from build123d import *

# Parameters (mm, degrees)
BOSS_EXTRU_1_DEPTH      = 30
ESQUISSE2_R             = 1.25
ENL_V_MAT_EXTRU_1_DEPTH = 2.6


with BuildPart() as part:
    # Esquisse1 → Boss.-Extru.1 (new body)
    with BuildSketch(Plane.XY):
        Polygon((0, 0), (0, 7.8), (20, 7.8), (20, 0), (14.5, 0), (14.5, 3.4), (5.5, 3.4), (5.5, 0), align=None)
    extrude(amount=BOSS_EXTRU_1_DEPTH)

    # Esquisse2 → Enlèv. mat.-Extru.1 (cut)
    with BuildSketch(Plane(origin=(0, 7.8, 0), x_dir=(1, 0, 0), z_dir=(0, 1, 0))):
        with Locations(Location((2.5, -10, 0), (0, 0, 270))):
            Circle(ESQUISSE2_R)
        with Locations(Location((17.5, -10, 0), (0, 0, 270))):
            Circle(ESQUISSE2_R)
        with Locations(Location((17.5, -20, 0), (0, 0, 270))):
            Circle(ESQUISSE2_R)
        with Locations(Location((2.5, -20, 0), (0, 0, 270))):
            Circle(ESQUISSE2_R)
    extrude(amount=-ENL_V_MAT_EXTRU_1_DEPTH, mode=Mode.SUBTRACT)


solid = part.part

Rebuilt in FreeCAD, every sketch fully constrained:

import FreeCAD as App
import Part
import Sketcher

V = App.Vector

doc = App.newDocument("Part")
params = doc.addObject("Spreadsheet::Sheet", "Params")
for row, (alias, value) in enumerate([
    ("sketch1_width", "9 mm"),
    ("sketch1_width2", "20 mm"),
    ("sketch1_height", "7.8 mm"),
    ("sketch1_height2", "3.4 mm"),
    ("pad1_length", "30 mm"),
    ("sketch2_diameter", "2.5 mm"),
    ("pocket1_length", "2.6 mm"),
], start=1):
    params.set(f"A{row}", alias)
    params.set(f"B{row}", "=" + value)
    params.setAlias(f"B{row}", alias)

body = doc.addObject("PartDesign::Body", "Body")

# Sketch on XY plane
sketch1 = body.newObject("Sketcher::SketchObject", "Sketch")
sketch1.AttachmentSupport = (doc.getObject("XY_Plane"), [""])
sketch1.MapMode = "FlatFace"
sketch1.addGeometry([
    Part.LineSegment(V(0, 7.8, 0), V(0, 0, 0)),  # 0
    Part.LineSegment(V(0, 0, 0), V(5.5, 0, 0)),  # 1
    Part.LineSegment(V(5.5, 0, 0), V(5.5, 3.4, 0)),  # 2
    Part.LineSegment(V(5.5, 3.4, 0), V(14.5, 3.4, 0)),  # 3
    Part.LineSegment(V(14.5, 3.4, 0), V(14.5, 0, 0)),  # 4
    Part.LineSegment(V(14.5, 0, 0), V(20, 0, 0)),  # 5
    Part.LineSegment(V(20, 0, 0), V(20, 7.8, 0)),  # 6
    Part.LineSegment(V(20, 7.8, 0), V(0, 7.8, 0)),  # 7
], False)
sketch1.addConstraint([
    Sketcher.Constraint("Coincident", 0, 2, 1, 1),
    Sketcher.Constraint("Coincident", 1, 2, 2, 1),
    Sketcher.Constraint("Coincident", 2, 2, 3, 1),
    Sketcher.Constraint("Coincident", 3, 2, 4, 1),
    Sketcher.Constraint("Coincident", 4, 2, 5, 1),
    Sketcher.Constraint("Coincident", 5, 2, 6, 1),
    Sketcher.Constraint("Coincident", 6, 2, 7, 1),
    Sketcher.Constraint("Coincident", 7, 2, 0, 1),
    Sketcher.Constraint("Vertical", 0),
    Sketcher.Constraint("Horizontal", 1),
    Sketcher.Constraint("Vertical", 2),
    Sketcher.Constraint("Horizontal", 3),
    Sketcher.Constraint("Vertical", 4),
    Sketcher.Constraint("Horizontal", 5),
    Sketcher.Constraint("Vertical", 6),
    Sketcher.Constraint("Horizontal", 7),
    Sketcher.Constraint("Coincident", 0, 2, -1, 1),
    Sketcher.Constraint("PointOnObject", 4, 2, -1),
    Sketcher.Constraint("Equal", 1, 5),
    Sketcher.Constraint("DistanceX", 3, 1, 3, 2, 9.0),
    Sketcher.Constraint("DistanceX", 7, 2, 7, 1, 20.0),
    Sketcher.Constraint("DistanceY", 0, 2, 0, 1, 7.8),
    Sketcher.Constraint("DistanceY", 2, 1, 2, 2, 3.4),
])
sketch1.setExpression("Constraints[19]", "Params.sketch1_width")
sketch1.setExpression("Constraints[20]", "Params.sketch1_width2")
sketch1.setExpression("Constraints[21]", "Params.sketch1_height")
sketch1.setExpression("Constraints[22]", "Params.sketch1_height2")
pad1 = body.newObject("PartDesign::Pad", "Pad")
pad1.Profile = sketch1
pad1.setExpression("Length", "Params.pad1_length")

# Sketch on XZ plane
sketch2 = body.newObject("Sketcher::SketchObject", "Sketch001")
sketch2.AttachmentSupport = (doc.getObject("XZ_Plane"), [""])
sketch2.MapMode = "FlatFace"
sketch2.AttachmentOffset = App.Placement(V(0, 0, -7.8), App.Rotation())
sketch2.addGeometry([
    Part.Circle(V(2.5, 10, 0), V(0, 0, 1), 1.2),
    Part.Circle(V(17.5, 10, 0), V(0, 0, 1), 1.2),
    Part.Circle(V(17.5, 20, 0), V(0, 0, 1), 1.2),
    Part.Circle(V(2.5, 20, 0), V(0, 0, 1), 1.2),
], False)
sketch2.addConstraint([
    Sketcher.Constraint("Equal", 0, 1),
    Sketcher.Constraint("Equal", 1, 2),
    Sketcher.Constraint("Equal", 2, 3),
    Sketcher.Constraint("Horizontal", 0, 3, 1, 3),
    Sketcher.Constraint("Horizontal", 2, 3, 3, 3),
    Sketcher.Constraint("Vertical", 1, 3, 2, 3),
    Sketcher.Constraint("Vertical", 0, 3, 3, 3),
    Sketcher.Constraint("Diameter", 0, 2.5),
    Sketcher.Constraint("DistanceY", -1, 1, 0, 3, 10.0),
    Sketcher.Constraint("DistanceY", -1, 1, 2, 3, 20.0),
    Sketcher.Constraint("DistanceX", 0, 3, 1, 3, 15.0),
    Sketcher.Constraint("DistanceX", -1, 1, 0, 3, 2.5),
])
sketch2.setExpression("Constraints[7]", "Params.sketch2_diameter")
pocket1 = body.newObject("PartDesign::Pocket", "Pocket")
pocket1.Profile = sketch2
pocket1.setExpression("Length", "Params.pocket1_length")
pocket1.Reversed = True

doc.recompute()
